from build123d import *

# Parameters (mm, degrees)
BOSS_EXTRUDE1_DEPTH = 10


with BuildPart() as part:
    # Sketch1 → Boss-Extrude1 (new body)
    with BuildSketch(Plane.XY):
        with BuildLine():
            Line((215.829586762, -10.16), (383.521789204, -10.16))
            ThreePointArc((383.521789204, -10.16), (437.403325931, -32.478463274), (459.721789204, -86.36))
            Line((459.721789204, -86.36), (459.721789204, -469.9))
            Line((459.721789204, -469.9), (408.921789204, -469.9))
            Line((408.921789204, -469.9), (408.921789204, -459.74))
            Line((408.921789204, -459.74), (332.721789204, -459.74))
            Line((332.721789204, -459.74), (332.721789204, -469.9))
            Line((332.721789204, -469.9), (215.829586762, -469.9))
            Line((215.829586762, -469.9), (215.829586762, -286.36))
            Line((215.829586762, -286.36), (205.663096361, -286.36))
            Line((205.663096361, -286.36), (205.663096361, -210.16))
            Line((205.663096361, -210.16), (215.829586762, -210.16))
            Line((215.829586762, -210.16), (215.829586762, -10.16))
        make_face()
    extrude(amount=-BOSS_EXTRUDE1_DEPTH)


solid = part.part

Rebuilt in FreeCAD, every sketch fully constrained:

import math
import FreeCAD as App
import Part
import Sketcher
from FreeCAD import Vector
Q = App.Units.Quantity

doc = App.newDocument("Part")
body = doc.addObject("PartDesign::Body", "Body")

# Sketch on XY plane
sketch1 = doc.addObject("Sketcher::SketchObject", "Sketch")
body.addObject(sketch1)
sketch1.AttachmentSupport = (doc.XY_Plane, [""])
sketch1.MapMode = "FlatFace"
sketch1.addGeometry([
    Part.LineSegment(Vector(384, -10, 0), Vector(216, -10, 0)),  # 0
    Part.LineSegment(Vector(216, -10, 0), Vector(216, -210, 0)),  # 1
    Part.LineSegment(Vector(216, -210, 0), Vector(206, -210, 0)),  # 2
    Part.LineSegment(Vector(206, -210, 0), Vector(206, -286, 0)),  # 3
    Part.LineSegment(Vector(206, -286, 0), Vector(216, -286, 0)),  # 4
    Part.LineSegment(Vector(216, -286, 0), Vector(216, -470, 0)),  # 5
    Part.LineSegment(Vector(216, -470, 0), Vector(333, -470, 0)),  # 6
    Part.LineSegment(Vector(333, -470, 0), Vector(333, -460, 0)),  # 7
    Part.LineSegment(Vector(333, -460, 0), Vector(409, -460, 0)),  # 8
    Part.LineSegment(Vector(409, -460, 0), Vector(409, -470, 0)),  # 9
    Part.LineSegment(Vector(409, -470, 0), Vector(460, -470, 0)),  # 10
    Part.LineSegment(Vector(460, -470, 0), Vector(460, -86, 0)),  # 11
    Part.ArcOfCircle(Part.Circle(Vector(384, -86, 0), Vector(0, 0, 1), 76), math.radians(0), math.radians(90)),  # 12
], False)
sketch1.addConstraint([
    Sketcher.Constraint("Coincident", 0, 2, 1, 1),
    Sketcher.Constraint("Coincident", 1, 2, 2, 1),
    Sketcher.Constraint("Coincident", 2, 2, 3, 1),
    Sketcher.Constraint("Coincident", 3, 2, 4, 1),
    Sketcher.Constraint("Coincident", 4, 2, 5, 1),
    Sketcher.Constraint("Coincident", 5, 2, 6, 1),
    Sketcher.Constraint("Coincident", 6, 2, 7, 1),
    Sketcher.Constraint("Coincident", 7, 2, 8, 1),
    Sketcher.Constraint("Coincident", 8, 2, 9, 1),
    Sketcher.Constraint("Coincident", 9, 2, 10, 1),
    Sketcher.Constraint("Coincident", 10, 2, 11, 1),
    Sketcher.Constraint("Tangent", 11, 2, 12, 1),
    Sketcher.Constraint("Tangent", 12, 2, 0, 1),
    Sketcher.Constraint("Horizontal", 0),
    Sketcher.Constraint("Vertical", 1),
    Sketcher.Constraint("Horizontal", 2),
    Sketcher.Constraint("Vertical", 3),
    Sketcher.Constraint("Horizontal", 4),
    Sketcher.Constraint("Vertical", 5),
    Sketcher.Constraint("Horizontal", 6),
    Sketcher.Constraint("Vertical", 7),
    Sketcher.Constraint("Horizontal", 8),
    Sketcher.Constraint("Vertical", 9),
    Sketcher.Constraint("Horizontal", 10),
    Sketcher.Constraint("Vertical", 11),
    Sketcher.Constraint("Horizontal", 6, 2, 9, 2),
    Sketcher.Constraint("Vertical", 1, 2, 4, 2),
    Sketcher.Constraint("Equal", 8, 3),
    Sketcher.Constraint("Radius", 12, Q("3 in")),
    Sketcher.Constraint("DistanceX", 8, 1, 8, 2, Q("3 in")),
    Sketcher.Constraint("DistanceX", 10, 1, 10, 2, Q("2 in")),
    Sketcher.Constraint("DistanceY", 7, 1, 7, 2, Q("0.4 in")),
    Sketcher.Constraint("DistanceY", 11, 1, 11, 2, Q("15.1 in")),
    Sketcher.Constraint("DistanceY", 12, 3, -1, 1, Q("3.4 in")),
    Sketcher.Constraint("DistanceY", 1, 2, 1, 1, 200.0),
    Sketcher.Constraint("DistanceX", 2, 2, 2, 1, 10.16649),
    Sketcher.Constraint("DistanceX", 0, 2, 0, 1, 167.692202),
    Sketcher.Constraint("DistanceX", -1, 1, 12, 3, 383.521789),
])
pad1 = doc.addObject("PartDesign::Pad", "Pad")
body.addObject(pad1)
pad1.Profile = sketch1
pad1.Length = 10
pad1.Reversed = True

doc.recompute()
